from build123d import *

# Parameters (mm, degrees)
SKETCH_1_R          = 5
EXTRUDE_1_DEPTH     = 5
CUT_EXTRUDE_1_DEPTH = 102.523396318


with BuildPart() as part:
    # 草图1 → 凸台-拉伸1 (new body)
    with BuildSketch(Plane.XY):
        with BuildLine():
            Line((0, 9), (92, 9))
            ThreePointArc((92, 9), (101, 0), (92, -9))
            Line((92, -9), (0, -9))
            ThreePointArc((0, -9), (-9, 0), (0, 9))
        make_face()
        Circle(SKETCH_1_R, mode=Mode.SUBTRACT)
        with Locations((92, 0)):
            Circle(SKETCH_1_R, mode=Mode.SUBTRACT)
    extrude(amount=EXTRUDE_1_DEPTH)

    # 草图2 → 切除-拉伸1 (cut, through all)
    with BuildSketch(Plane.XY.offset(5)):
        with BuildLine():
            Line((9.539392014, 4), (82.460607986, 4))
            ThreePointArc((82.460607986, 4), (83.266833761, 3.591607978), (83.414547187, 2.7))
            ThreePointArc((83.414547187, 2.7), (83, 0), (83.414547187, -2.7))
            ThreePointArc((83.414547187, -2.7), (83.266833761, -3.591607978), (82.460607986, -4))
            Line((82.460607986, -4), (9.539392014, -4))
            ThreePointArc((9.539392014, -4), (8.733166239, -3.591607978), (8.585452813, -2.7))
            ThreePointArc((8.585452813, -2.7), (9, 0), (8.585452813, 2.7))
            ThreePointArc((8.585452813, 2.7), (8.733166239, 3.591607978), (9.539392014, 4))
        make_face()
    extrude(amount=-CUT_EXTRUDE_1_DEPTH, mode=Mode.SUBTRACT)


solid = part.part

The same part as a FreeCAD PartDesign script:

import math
import FreeCAD as App
import Part
import Sketcher
from FreeCAD import Vector
Q = App.Units.Quantity

doc = App.newDocument("Part")
body = doc.addObject("PartDesign::Body", "Body")

sketch1 = doc.addObject("Sketcher::SketchObject", "Sketch")
body.addObject(sketch1)
sketch1.AttachmentSupport = (doc.XY_Plane, [""])
sketch1.MapMode = "FlatFace"
sketch1.addGeometry([
    Part.LineSegment(Vector(92, 9, 0), Vector(0, 9, 0)),
    Part.ArcOfCircle(Part.Circle(Vector(0, 0, 0), Vector(0, 0, 1), 9), math.radians(90), math.radians(270)),
    Part.LineSegment(Vector(0, -9, 0), Vector(92, -9, 0)),
    Part.ArcOfCircle(Part.Circle(Vector(92, 0, 0), Vector(0, 0, 1), 9), math.radians(-90), math.radians(90)),
    Part.Circle(Vector(92, 0, 0), Vector(0, 0, 1), 5),
    Part.Circle(Vector(0, 0, 0), Vector(0, 0, 1), 5),
], False)
sketch1.addConstraint([
    Sketcher.Constraint("Tangent", 0, 2, 1, 1),
    Sketcher.Constraint("Tangent", 1, 2, 2, 1),
    Sketcher.Constraint("Tangent", 2, 2, 3, 1),
    Sketcher.Constraint("Tangent", 3, 2, 0, 1),
    Sketcher.Constraint("Horizontal", 0),
    Sketcher.Constraint("Horizontal", 2),
    Sketcher.Constraint("Coincident", 1, 3, -1, 1),
    Sketcher.Constraint("Coincident", 5, 3, -1, 1),
    Sketcher.Constraint("Coincident", 4, 3, 3, 3),
    Sketcher.Constraint("Equal", 4, 5),
    Sketcher.Constraint("Diameter", 4, Q("10 mm")),
    Sketcher.Constraint("Radius", 1, Q("9 mm")),
    Sketcher.Constraint("DistanceX", 0, 2, 0, 1, Q("92 mm")),
])
pad1 = doc.addObject("PartDesign::Pad", "Pad")
body.addObject(pad1)
pad1.Profile = sketch1
pad1.Length = 5

sketch2 = doc.addObject("Sketcher::SketchObject", "Sketch001")
body.addObject(sketch2)
sketch2.AttachmentSupport = (doc.XY_Plane, [""])
sketch2.MapMode = "FlatFace"
sketch2.AttachmentOffset = App.Placement(Vector(0, 0, 5), App.Rotation())
sketch2.addGeometry([
    Part.LineSegment(Vector(82.5, 4, 0), Vector(9.5, 4, 0)),
    Part.ArcOfCircle(Part.Circle(Vector(9.5, 3, 0), Vector(0, 0, 1), 1), math.radians(90), math.radians(197)),
    Part.ArcOfCircle(Part.Circle(Vector(0, 0, 0), Vector(0, 0, 1), 9), math.radians(-17), math.radians(17)),
    Part.ArcOfCircle(Part.Circle(Vector(9.5, -3, 0), Vector(0, 0, 1), 1), math.radians(163), math.radians(270)),
    Part.LineSegment(Vector(9.5, -4, 0), Vector(82.5, -4, 0)),
    Part.ArcOfCircle(Part.Circle(Vector(82.5, -3, 0), Vector(0, 0, 1), 1), math.radians(-90), math.radians(17)),
    Part.ArcOfCircle(Part.Circle(Vector(92, 0, 0), Vector(0, 0, 1), 9), math.radians(163), math.radians(197)),
    Part.ArcOfCircle(Part.Circle(Vector(82.5, 3, 0), Vector(0, 0, 1), 1), math.radians(-17), math.radians(90)),
], False)
sketch2.addConstraint([
    Sketcher.Constraint("Tangent", 0, 2, 1, 1),
    Sketcher.Constraint("Tangent", 1, 2, 2, 2),
    Sketcher.Constraint("Tangent", 2, 1, 3, 1),
    Sketcher.Constraint("Tangent", 3, 2, 4, 1),
    Sketcher.Constraint("Tangent", 4, 2, 5, 1),
    Sketcher.Constraint("Tangent", 5, 2, 6, 2),
    Sketcher.Constraint("Tangent", 6, 1, 7, 1),
    Sketcher.Constraint("Tangent", 7, 2, 0, 1),
    Sketcher.Constraint("Horizontal", 0),
    Sketcher.Constraint("Horizontal", 4),
    Sketcher.Constraint("Coincident", 2, 3, -1, 1),
    Sketcher.Constraint("Equal", 1, 3),
    Sketcher.Constraint("Equal", 3, 5),
    Sketcher.Constraint("Equal", 2, 6),
    Sketcher.Constraint("Equal", 5, 7),
    Sketcher.Constraint("Symmetric", 5, 3, 7, 3, -1),
    Sketcher.Constraint("Radius", 1, Q("1 mm")),
    Sketcher.Constraint("Radius", 2, Q("9 mm")),
    Sketcher.Constraint("DistanceY", -1, 1, 1, 3, Q("3 mm")),
    Sketcher.Constraint("DistanceX", -1, 1, 6, 3, Q("92 mm")),
])
pocket1 = doc.addObject("PartDesign::Pocket", "Pocket")
body.addObject(pocket1)
pocket1.Profile = sketch2
pocket1.Type = "ThroughAll"

doc.recompute()
